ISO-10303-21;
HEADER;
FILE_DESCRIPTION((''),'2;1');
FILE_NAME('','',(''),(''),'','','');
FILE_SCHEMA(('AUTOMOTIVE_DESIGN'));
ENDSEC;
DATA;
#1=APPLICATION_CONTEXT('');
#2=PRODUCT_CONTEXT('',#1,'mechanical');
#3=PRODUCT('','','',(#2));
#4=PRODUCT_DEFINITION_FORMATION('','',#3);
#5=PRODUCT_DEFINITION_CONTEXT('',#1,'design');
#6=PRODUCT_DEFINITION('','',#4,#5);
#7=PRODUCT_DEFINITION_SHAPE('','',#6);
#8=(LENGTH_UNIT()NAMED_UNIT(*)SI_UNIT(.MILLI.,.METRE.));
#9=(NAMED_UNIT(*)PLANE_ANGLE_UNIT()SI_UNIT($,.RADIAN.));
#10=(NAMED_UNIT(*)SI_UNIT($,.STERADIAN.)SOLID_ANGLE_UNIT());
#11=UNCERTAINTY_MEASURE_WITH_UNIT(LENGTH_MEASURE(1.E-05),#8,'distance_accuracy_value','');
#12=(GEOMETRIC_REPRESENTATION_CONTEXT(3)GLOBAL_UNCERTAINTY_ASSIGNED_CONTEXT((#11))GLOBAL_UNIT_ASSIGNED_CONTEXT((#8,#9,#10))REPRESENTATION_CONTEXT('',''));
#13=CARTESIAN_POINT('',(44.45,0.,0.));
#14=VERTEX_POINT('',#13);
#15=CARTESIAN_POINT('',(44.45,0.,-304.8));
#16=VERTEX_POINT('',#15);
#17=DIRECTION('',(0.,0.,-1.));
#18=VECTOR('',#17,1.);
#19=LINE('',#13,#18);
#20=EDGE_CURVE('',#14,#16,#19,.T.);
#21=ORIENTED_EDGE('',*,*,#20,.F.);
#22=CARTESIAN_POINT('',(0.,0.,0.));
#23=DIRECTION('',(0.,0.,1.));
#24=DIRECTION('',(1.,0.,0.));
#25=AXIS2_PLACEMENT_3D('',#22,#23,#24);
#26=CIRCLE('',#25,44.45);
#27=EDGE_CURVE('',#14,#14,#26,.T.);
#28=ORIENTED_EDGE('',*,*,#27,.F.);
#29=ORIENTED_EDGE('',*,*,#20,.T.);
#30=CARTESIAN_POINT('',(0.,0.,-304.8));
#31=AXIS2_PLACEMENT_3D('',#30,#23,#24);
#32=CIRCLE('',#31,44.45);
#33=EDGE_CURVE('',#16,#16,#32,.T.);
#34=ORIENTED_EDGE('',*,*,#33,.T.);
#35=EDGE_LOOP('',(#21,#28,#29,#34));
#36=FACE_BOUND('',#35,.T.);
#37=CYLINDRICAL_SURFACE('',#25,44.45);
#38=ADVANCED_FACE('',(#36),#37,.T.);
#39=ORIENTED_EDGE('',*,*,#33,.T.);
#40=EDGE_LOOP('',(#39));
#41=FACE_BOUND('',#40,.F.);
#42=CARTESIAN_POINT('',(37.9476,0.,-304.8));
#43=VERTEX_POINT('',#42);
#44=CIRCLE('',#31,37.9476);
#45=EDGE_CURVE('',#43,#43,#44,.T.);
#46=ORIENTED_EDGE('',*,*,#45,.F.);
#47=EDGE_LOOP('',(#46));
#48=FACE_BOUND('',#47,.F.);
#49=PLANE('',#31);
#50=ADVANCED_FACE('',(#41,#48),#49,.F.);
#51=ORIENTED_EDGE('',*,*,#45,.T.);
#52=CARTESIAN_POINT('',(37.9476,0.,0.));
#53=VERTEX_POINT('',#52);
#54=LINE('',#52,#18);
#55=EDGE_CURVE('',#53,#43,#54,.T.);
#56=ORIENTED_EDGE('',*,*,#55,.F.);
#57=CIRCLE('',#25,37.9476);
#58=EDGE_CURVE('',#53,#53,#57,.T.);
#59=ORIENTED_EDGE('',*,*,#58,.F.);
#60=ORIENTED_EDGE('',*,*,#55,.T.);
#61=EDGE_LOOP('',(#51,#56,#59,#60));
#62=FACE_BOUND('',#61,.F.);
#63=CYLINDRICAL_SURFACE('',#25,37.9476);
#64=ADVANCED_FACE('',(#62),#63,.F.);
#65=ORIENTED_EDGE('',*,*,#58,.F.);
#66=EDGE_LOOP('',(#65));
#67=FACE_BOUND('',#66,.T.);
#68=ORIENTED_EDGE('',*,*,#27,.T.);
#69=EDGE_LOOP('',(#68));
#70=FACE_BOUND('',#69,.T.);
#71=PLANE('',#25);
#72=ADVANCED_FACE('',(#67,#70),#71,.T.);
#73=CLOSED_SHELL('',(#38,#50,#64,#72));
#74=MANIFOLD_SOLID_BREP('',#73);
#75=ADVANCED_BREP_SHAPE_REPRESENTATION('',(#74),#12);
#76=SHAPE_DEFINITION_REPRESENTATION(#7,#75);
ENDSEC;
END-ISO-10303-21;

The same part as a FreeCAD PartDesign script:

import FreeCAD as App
import Part
import Sketcher
Q = App.Units.Quantity

doc = App.newDocument("Part")
body = doc.addObject("PartDesign::Body", "Body")

# Sketch on XY plane
sketch1 = body.newObject("Sketcher::SketchObject", "Sketch")
sketch1.AttachmentSupport = (doc.getObject("XY_Plane"), [""])
sketch1.MapMode = "FlatFace"
sketch1.addGeometry(Part.Circle(App.Vector(0, 0, 0), App.Vector(0, 0, 1), 44.45), False)
sketch1.addGeometry(Part.Circle(App.Vector(0, 0, 0), App.Vector(0, 0, 1), 37.9476), False)
sketch1.addConstraint(Sketcher.Constraint("Coincident", 0, 3, -1, 1))
sketch1.addConstraint(Sketcher.Constraint("Coincident", 1, 3, -1, 1))
sketch1.addConstraint(Sketcher.Constraint("Diameter", 0, Q("3.5 in")))
sketch1.addConstraint(Sketcher.Constraint("Diameter", 1, Q("2.988 in")))
pad1 = body.newObject("PartDesign::Pad", "Pad")
pad1.Profile = sketch1
pad1.Length = Q("12 in")
pad1.Reversed = True

doc.recompute()
